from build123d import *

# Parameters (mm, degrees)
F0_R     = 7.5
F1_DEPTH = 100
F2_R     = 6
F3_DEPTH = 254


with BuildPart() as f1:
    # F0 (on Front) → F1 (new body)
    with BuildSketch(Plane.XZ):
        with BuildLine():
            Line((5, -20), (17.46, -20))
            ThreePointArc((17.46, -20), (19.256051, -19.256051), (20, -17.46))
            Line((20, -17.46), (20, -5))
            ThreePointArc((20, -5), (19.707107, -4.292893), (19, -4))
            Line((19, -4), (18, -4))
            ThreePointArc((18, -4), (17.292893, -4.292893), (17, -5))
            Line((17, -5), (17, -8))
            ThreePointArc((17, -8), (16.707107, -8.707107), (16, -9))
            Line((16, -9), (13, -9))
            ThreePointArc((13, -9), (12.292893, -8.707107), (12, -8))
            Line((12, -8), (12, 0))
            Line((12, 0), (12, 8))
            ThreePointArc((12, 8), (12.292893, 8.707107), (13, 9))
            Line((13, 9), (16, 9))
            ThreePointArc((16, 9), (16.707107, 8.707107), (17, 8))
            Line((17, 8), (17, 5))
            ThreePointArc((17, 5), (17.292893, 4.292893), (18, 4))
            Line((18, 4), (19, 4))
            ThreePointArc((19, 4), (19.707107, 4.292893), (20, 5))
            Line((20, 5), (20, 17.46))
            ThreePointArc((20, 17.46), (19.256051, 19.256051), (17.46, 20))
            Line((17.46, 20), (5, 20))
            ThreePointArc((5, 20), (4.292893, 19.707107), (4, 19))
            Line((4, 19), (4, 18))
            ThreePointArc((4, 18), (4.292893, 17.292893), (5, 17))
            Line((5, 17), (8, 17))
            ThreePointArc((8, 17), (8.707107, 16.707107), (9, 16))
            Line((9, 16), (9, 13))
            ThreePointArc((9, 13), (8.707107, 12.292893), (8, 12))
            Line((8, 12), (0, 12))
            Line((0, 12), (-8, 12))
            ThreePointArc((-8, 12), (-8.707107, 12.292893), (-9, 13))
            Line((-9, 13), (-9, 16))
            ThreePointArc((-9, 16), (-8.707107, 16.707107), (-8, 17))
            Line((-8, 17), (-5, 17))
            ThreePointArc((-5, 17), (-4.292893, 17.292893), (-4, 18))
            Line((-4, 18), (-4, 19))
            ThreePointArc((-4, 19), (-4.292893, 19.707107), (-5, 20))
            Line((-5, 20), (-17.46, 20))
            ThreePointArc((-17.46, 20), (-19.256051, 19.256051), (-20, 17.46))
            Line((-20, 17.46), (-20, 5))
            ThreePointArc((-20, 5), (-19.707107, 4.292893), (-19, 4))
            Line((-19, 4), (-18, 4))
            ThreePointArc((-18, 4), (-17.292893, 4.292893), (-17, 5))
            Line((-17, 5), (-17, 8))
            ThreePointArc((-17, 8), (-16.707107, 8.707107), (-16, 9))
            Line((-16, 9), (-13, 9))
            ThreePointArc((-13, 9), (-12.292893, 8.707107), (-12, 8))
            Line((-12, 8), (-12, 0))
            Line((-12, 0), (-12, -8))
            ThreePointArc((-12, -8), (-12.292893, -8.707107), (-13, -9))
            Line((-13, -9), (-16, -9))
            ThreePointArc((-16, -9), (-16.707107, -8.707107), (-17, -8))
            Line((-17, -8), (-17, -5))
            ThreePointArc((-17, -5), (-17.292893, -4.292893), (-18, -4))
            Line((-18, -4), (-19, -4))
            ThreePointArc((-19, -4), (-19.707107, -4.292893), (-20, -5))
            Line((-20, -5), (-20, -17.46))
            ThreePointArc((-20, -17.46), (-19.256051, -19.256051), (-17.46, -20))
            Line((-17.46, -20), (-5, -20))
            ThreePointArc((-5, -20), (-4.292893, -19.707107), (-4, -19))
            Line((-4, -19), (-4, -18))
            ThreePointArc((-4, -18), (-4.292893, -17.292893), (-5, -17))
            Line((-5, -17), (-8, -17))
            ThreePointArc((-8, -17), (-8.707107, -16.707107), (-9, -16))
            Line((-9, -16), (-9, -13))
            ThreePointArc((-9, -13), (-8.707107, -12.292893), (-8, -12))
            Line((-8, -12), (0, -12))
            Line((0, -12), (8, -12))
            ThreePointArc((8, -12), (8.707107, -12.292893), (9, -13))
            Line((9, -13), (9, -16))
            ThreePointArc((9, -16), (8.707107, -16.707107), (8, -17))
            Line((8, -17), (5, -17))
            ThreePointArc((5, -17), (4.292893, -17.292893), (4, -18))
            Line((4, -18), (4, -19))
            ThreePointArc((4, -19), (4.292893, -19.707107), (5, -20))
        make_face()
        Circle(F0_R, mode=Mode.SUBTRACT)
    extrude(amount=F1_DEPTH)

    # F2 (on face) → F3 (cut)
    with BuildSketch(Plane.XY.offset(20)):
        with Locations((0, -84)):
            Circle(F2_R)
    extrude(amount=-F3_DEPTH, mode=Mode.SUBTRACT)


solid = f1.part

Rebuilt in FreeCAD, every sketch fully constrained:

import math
import FreeCAD as App
import Part
import Sketcher

V = App.Vector
Q = App.Units.Quantity

doc = App.newDocument("Part")
params = doc.addObject("Spreadsheet::Sheet", "Params")
for row, (alias, value) in enumerate([
    ("sketch1_diameter", "15 mm"),
    ("sketch1_radius", "0.999999 mm"),
    ("sketch1_width", "1 mm"),
    ("sketch1_width2", "3 mm"),
    ("sketch1_width3", "16 mm"),
    ("pad1_length", "100 mm"),
    ("sketch2_diameter", "12 mm"),
    ("pocket1_length", "254 mm"),
], start=1):
    params.set(f"A{row}", alias)
    params.set(f"B{row}", "=" + value)
    params.setAlias(f"B{row}", alias)

body = doc.addObject("PartDesign::Body", "Body")

sketch1 = body.newObject("Sketcher::SketchObject", "Sketch")
sketch1.AttachmentSupport = (doc.getObject("XZ_Plane"), [""])
sketch1.MapMode = "FlatFace"
sketch1.addGeometry([
    Part.LineSegment(V(5, -20, 0), V(17.5, -20, 0)),
    Part.ArcOfCircle(Part.Circle(V(17.5, -17.5, 0), V(0, 0, 1), 2.5), math.radians(-90), math.radians(0)),
    Part.LineSegment(V(20, -17.5, 0), V(20, -5, 0)),
    Part.ArcOfCircle(Part.Circle(V(19, -5, 0), V(0, 0, 1), 1), math.radians(0), math.radians(90)),
    Part.LineSegment(V(19, -4, 0), V(18, -4, 0)),
    Part.ArcOfCircle(Part.Circle(V(18, -5, 0), V(0, 0, 1), 1), math.radians(90), math.radians(180)),
    Part.LineSegment(V(17, -5, 0), V(17, -8, 0)),
    Part.ArcOfCircle(Part.Circle(V(16, -8, 0), V(0, 0, 1), 1), math.radians(-90), math.radians(0)),
    Part.LineSegment(V(16, -9, 0), V(13, -9, 0)),
    Part.ArcOfCircle(Part.Circle(V(13, -8, 0), V(0, 0, 1), 1), math.radians(180), math.radians(270)),
    Part.LineSegment(V(12, -8, 0), V(12, 8, 0)),
    Part.ArcOfCircle(Part.Circle(V(13, 8, 0), V(0, 0, 1), 1), math.radians(90), math.radians(180)),
    Part.LineSegment(V(13, 9, 0), V(16, 9, 0)),
    Part.ArcOfCircle(Part.Circle(V(16, 8, 0), V(0, 0, 1), 1), math.radians(0), math.radians(90)),
    Part.LineSegment(V(17, 8, 0), V(17, 5, 0)),
    Part.ArcOfCircle(Part.Circle(V(18, 5, 0), V(0, 0, 1), 1), math.radians(180), math.radians(270)),
    Part.LineSegment(V(18, 4, 0), V(19, 4, 0)),
    Part.ArcOfCircle(Part.Circle(V(19, 5, 0), V(0, 0, 1), 1), math.radians(-90), math.radians(0)),
    Part.LineSegment(V(20, 5, 0), V(20, 17.5, 0)),
    Part.ArcOfCircle(Part.Circle(V(17.5, 17.5, 0), V(0, 0, 1), 2.5), math.radians(0), math.radians(90)),
    Part.LineSegment(V(17.5, 20, 0), V(5, 20, 0)),
    Part.ArcOfCircle(Part.Circle(V(5, 19, 0), V(0, 0, 1), 1), math.radians(90), math.radians(180)),
    Part.LineSegment(V(4, 19, 0), V(4, 18, 0)),
    Part.ArcOfCircle(Part.Circle(V(5, 18, 0), V(0, 0, 1), 1), math.radians(180), math.radians(270)),
    Part.LineSegment(V(5, 17, 0), V(8, 17, 0)),
    Part.ArcOfCircle(Part.Circle(V(8, 16, 0), V(0, 0, 1), 1), math.radians(0), math.radians(90)),
    Part.LineSegment(V(9, 16, 0), V(9, 13, 0)),
    Part.ArcOfCircle(Part.Circle(V(8, 13, 0), V(0, 0, 1), 1), math.radians(-90), math.radians(0)),
    Part.LineSegment(V(8, 12, 0), V(-8, 12, 0)),
    Part.ArcOfCircle(Part.Circle(V(-8, 13, 0), V(0, 0, 1), 1), math.radians(180), math.radians(270)),
    Part.LineSegment(V(-9, 13, 0), V(-9, 16, 0)),
    Part.ArcOfCircle(Part.Circle(V(-8, 16, 0), V(0, 0, 1), 1), math.radians(90), math.radians(180)),
    Part.LineSegment(V(-8, 17, 0), V(-5, 17, 0)),
    Part.ArcOfCircle(Part.Circle(V(-5, 18, 0), V(0, 0, 1), 1), math.radians(-90), math.radians(0)),
    Part.LineSegment(V(-4, 18, 0), V(-4, 19, 0)),
    Part.ArcOfCircle(Part.Circle(V(-5, 19, 0), V(0, 0, 1), 1), math.radians(0), math.radians(90)),
    Part.LineSegment(V(-5, 20, 0), V(-17.5, 20, 0)),
    Part.ArcOfCircle(Part.Circle(V(-17.5, 17.5, 0), V(0, 0, 1), 2.5), math.radians(90), math.radians(180)),
    Part.LineSegment(V(-20, 17.5, 0), V(-20, 5, 0)),
    Part.ArcOfCircle(Part.Circle(V(-19, 5, 0), V(0, 0, 1), 1), math.radians(180), math.radians(270)),
    Part.LineSegment(V(-19, 4, 0), V(-18, 4, 0)),
    Part.ArcOfCircle(Part.Circle(V(-18, 5, 0), V(0, 0, 1), 1), math.radians(-90), math.radians(0)),
    Part.LineSegment(V(-17, 5, 0), V(-17, 8, 0)),
    Part.ArcOfCircle(Part.Circle(V(-16, 8, 0), V(0, 0, 1), 1), math.radians(90), math.radians(180)),
    Part.LineSegment(V(-16, 9, 0), V(-13, 9, 0)),
    Part.ArcOfCircle(Part.Circle(V(-13, 8, 0), V(0, 0, 1), 1), math.radians(0), math.radians(90)),
    Part.LineSegment(V(-12, 8, 0), V(-12, -8, 0)),
    Part.ArcOfCircle(Part.Circle(V(-13, -8, 0), V(0, 0, 1), 1), math.radians(-90), math.radians(0)),
    Part.LineSegment(V(-13, -9, 0), V(-16, -9, 0)),
    Part.ArcOfCircle(Part.Circle(V(-16, -8, 0), V(0, 0, 1), 1), math.radians(180), math.radians(270)),
    Part.LineSegment(V(-17, -8, 0), V(-17, -5, 0)),
    Part.ArcOfCircle(Part.Circle(V(-18, -5, 0), V(0, 0, 1), 1), math.radians(0), math.radians(90)),
    Part.LineSegment(V(-18, -4, 0), V(-19, -4, 0)),
    Part.ArcOfCircle(Part.Circle(V(-19, -5, 0), V(0, 0, 1), 1), math.radians(90), math.radians(180)),
    Part.LineSegment(V(-20, -5, 0), V(-20, -17.5, 0)),
    Part.ArcOfCircle(Part.Circle(V(-17.5, -17.5, 0), V(0, 0, 1), 2.5), math.radians(-180), math.radians(-90)),
    Part.LineSegment(V(-17.5, -20, 0), V(-5, -20, 0)),
    Part.ArcOfCircle(Part.Circle(V(-5, -19, 0), V(0, 0, 1), 1), math.radians(-90), math.radians(0)),
    Part.LineSegment(V(-4, -19, 0), V(-4, -18, 0)),
    Part.ArcOfCircle(Part.Circle(V(-5, -18, 0), V(0, 0, 1), 1), math.radians(0), math.radians(90)),
    Part.LineSegment(V(-5, -17, 0), V(-8, -17, 0)),
    Part.ArcOfCircle(Part.Circle(V(-8, -16, 0), V(0, 0, 1), 1), math.radians(180), math.radians(270)),
    Part.LineSegment(V(-9, -16, 0), V(-9, -13, 0)),
    Part.ArcOfCircle(Part.Circle(V(-8, -13, 0), V(0, 0, 1), 1), math.radians(90), math.radians(180)),
    Part.LineSegment(V(-8, -12, 0), V(8, -12, 0)),
    Part.ArcOfCircle(Part.Circle(V(8, -13, 0), V(0, 0, 1), 1), math.radians(0), math.radians(90)),
    Part.LineSegment(V(9, -13, 0), V(9, -16, 0)),
    Part.ArcOfCircle(Part.Circle(V(8, -16, 0), V(0, 0, 1), 1), math.radians(-90), math.radians(0)),
    Part.LineSegment(V(8, -17, 0), V(5, -17, 0)),
    Part.ArcOfCircle(Part.Circle(V(5, -18, 0), V(0, 0, 1), 1), math.radians(90), math.radians(180)),
    Part.LineSegment(V(4, -18, 0), V(4, -19, 0)),
    Part.ArcOfCircle(Part.Circle(V(5, -19, 0), V(0, 0, 1), 1), math.radians(180), math.radians(270)),
    Part.Circle(V(0, 0, 0), V(0, 0, 1), 7.5),
], False)
sketch1.addConstraint([
    Sketcher.Constraint("Tangent", 0, 2, 1, 1),
    Sketcher.Constraint("Tangent", 1, 2, 2, 1),
    Sketcher.Constraint("Tangent", 2, 2, 3, 1),
    Sketcher.Constraint("Tangent", 3, 2, 4, 1),
    Sketcher.Constraint("Tangent", 4, 2, 5, 1),
    Sketcher.Constraint("Tangent", 5, 2, 6, 1),
    Sketcher.Constraint("Tangent", 6, 2, 7, 2),
    Sketcher.Constraint("Tangent", 7, 1, 8, 1),
    Sketcher.Constraint("Tangent", 8, 2, 9, 2),
    Sketcher.Constraint("Tangent", 9, 1, 10, 1),
    Sketcher.Constraint("Tangent", 10, 2, 11, 2),
    Sketcher.Constraint("Tangent", 11, 1, 12, 1),
    Sketcher.Constraint("Tangent", 12, 2, 13, 2),
    Sketcher.Constraint("Tangent", 13, 1, 14, 1),
    Sketcher.Constraint("Tangent", 14, 2, 15, 1),
    Sketcher.Constraint("Tangent", 15, 2, 16, 1),
    Sketcher.Constraint("Tangent", 16, 2, 17, 1),
    Sketcher.Constraint("Tangent", 17, 2, 18, 1),
    Sketcher.Constraint("Tangent", 18, 2, 19, 1),
    Sketcher.Constraint("Tangent", 19, 2, 20, 1),
    Sketcher.Constraint("Tangent", 20, 2, 21, 1),
    Sketcher.Constraint("Tangent", 21, 2, 22, 1),
    Sketcher.Constraint("Tangent", 22, 2, 23, 1),
    Sketcher.Constraint("Tangent", 23, 2, 24, 1),
    Sketcher.Constraint("Tangent", 24, 2, 25, 2),
    Sketcher.Constraint("Tangent", 25, 1, 26, 1),
    Sketcher.Constraint("Tangent", 26, 2, 27, 2),
    Sketcher.Constraint("Tangent", 27, 1, 28, 1),
    Sketcher.Constraint("Tangent", 28, 2, 29, 2),
    Sketcher.Constraint("Tangent", 29, 1, 30, 1),
    Sketcher.Constraint("Tangent", 30, 2, 31, 2),
    Sketcher.Constraint("Tangent", 31, 1, 32, 1),
    Sketcher.Constraint("Tangent", 32, 2, 33, 1),
    Sketcher.Constraint("Tangent", 33, 2, 34, 1),
    Sketcher.Constraint("Tangent", 34, 2, 35, 1),
    Sketcher.Constraint("Tangent", 35, 2, 36, 1),
    Sketcher.Constraint("Tangent", 36, 2, 37, 1),
    Sketcher.Constraint("Tangent", 37, 2, 38, 1),
    Sketcher.Constraint("Tangent", 38, 2, 39, 1),
    Sketcher.Constraint("Tangent", 39, 2, 40, 1),
    Sketcher.Constraint("Tangent", 40, 2, 41, 1),
    Sketcher.Constraint("Tangent", 41, 2, 42, 1),
    Sketcher.Constraint("Tangent", 42, 2, 43, 2),
    Sketcher.Constraint("Tangent", 43, 1, 44, 1),
    Sketcher.Constraint("Tangent", 44, 2, 45, 2),
    Sketcher.Constraint("Tangent", 45, 1, 46, 1),
    Sketcher.Constraint("Tangent", 46, 2, 47, 2),
    Sketcher.Constraint("Tangent", 47, 1, 48, 1),
    Sketcher.Constraint("Tangent", 48, 2, 49, 2),
    Sketcher.Constraint("Tangent", 49, 1, 50, 1),
    Sketcher.Constraint("Tangent", 50, 2, 51, 1),
    Sketcher.Constraint("Tangent", 51, 2, 52, 1),
    Sketcher.Constraint("Tangent", 52, 2, 53, 1),
    Sketcher.Constraint("Tangent", 53, 2, 54, 1),
    Sketcher.Constraint("Tangent", 54, 2, 55, 1),
    Sketcher.Constraint("Tangent", 55, 2, 56, 1),
    Sketcher.Constraint("Tangent", 56, 2, 57, 1),
    Sketcher.Constraint("Tangent", 57, 2, 58, 1),
    Sketcher.Constraint("Tangent", 58, 2, 59, 1),
    Sketcher.Constraint("Tangent", 59, 2, 60, 1),
    Sketcher.Constraint("Tangent", 60, 2, 61, 2),
    Sketcher.Constraint("Tangent", 61, 1, 62, 1),
    Sketcher.Constraint("Tangent", 62, 2, 63, 2),
    Sketcher.Constraint("Tangent", 63, 1, 64, 1),
    Sketcher.Constraint("Tangent", 64, 2, 65, 2),
    Sketcher.Constraint("Tangent", 65, 1, 66, 1),
    Sketcher.Constraint("Tangent", 66, 2, 67, 2),
    Sketcher.Constraint("Tangent", 67, 1, 68, 1),
    Sketcher.Constraint("Tangent", 68, 2, 69, 1),
    Sketcher.Constraint("Tangent", 69, 2, 70, 1),
    Sketcher.Constraint("Tangent", 70, 2, 71, 1),
    Sketcher.Constraint("Tangent", 71, 2, 0, 1),
    Sketcher.Constraint("Horizontal", 0),
    Sketcher.Constraint("Vertical", 2),
    Sketcher.Constraint("Horizontal", 4),
    Sketcher.Constraint("Vertical", 6),
    Sketcher.Constraint("Horizontal", 8),
    Sketcher.Constraint("Vertical", 10),
    Sketcher.Constraint("Horizontal", 12),
    Sketcher.Constraint("Vertical", 14),
    Sketcher.Constraint("Horizontal", 16),
    Sketcher.Constraint("Vertical", 18),
    Sketcher.Constraint("Horizontal", 20),
    Sketcher.Constraint("Vertical", 22),
    Sketcher.Constraint("Horizontal", 24),
    Sketcher.Constraint("Vertical", 26),
    Sketcher.Constraint("Horizontal", 28),
    Sketcher.Constraint("Vertical", 30),
    Sketcher.Constraint("Horizontal", 32),
    Sketcher.Constraint("Vertical", 34),
    Sketcher.Constraint("Horizontal", 36),
    Sketcher.Constraint("Vertical", 38),
    Sketcher.Constraint("Horizontal", 40),
    Sketcher.Constraint("Vertical", 42),
    Sketcher.Constraint("Horizontal", 44),
    Sketcher.Constraint("Vertical", 46),
    Sketcher.Constraint("Horizontal", 48),
    Sketcher.Constraint("Vertical", 50),
    Sketcher.Constraint("Horizontal", 52),
    Sketcher.Constraint("Vertical", 54),
    Sketcher.Constraint("Horizontal", 56),
    Sketcher.Constraint("Vertical", 58),
    Sketcher.Constraint("Horizontal", 60),
    Sketcher.Constraint("Vertical", 62),
    Sketcher.Constraint("Horizontal", 64),
    Sketcher.Constraint("Vertical", 66),
    Sketcher.Constraint("Horizontal", 68),
    Sketcher.Constraint("Vertical", 70),
    Sketcher.Constraint("Coincident", 72, 3, -1, 1),
    Sketcher.Constraint("Equal", 3, 5),
    Sketcher.Constraint("Equal", 5, 7),
    Sketcher.Constraint("Equal", 7, 9),
    Sketcher.Constraint("Equal", 9, 11),
    Sketcher.Constraint("Equal", 11, 13),
    Sketcher.Constraint("Equal", 13, 15),
    Sketcher.Constraint("Equal", 15, 17),
    Sketcher.Constraint("Equal", 1, 19),
    Sketcher.Constraint("Equal", 17, 21),
    Sketcher.Constraint("Equal", 21, 23),
    Sketcher.Constraint("Equal", 23, 25),
    Sketcher.Constraint("Equal", 25, 27),
    Sketcher.Constraint("Equal", 27, 29),
    Sketcher.Constraint("Equal", 29, 31),
    Sketcher.Constraint("Equal", 31, 33),
    Sketcher.Constraint("Equal", 33, 35),
    Sketcher.Constraint("Equal", 19, 37),
    Sketcher.Constraint("Equal", 35, 39),
    Sketcher.Constraint("Equal", 39, 41),
    Sketcher.Constraint("Equal", 41, 43),
    Sketcher.Constraint("Equal", 43, 45),
    Sketcher.Constraint("Equal", 45, 47),
    Sketcher.Constraint("Equal", 47, 49),
    Sketcher.Constraint("Equal", 49, 51),
    Sketcher.Constraint("Equal", 51, 53),
    Sketcher.Constraint("Equal", 37, 55),
    Sketcher.Constraint("Equal", 53, 57),
    Sketcher.Constraint("Equal", 57, 59),
    Sketcher.Constraint("Equal", 59, 61),
    Sketcher.Constraint("Equal", 61, 63),
    Sketcher.Constraint("Equal", 63, 65),
    Sketcher.Constraint("Equal", 65, 67),
    Sketcher.Constraint("Equal", 67, 69),
    Sketcher.Constraint("Equal", 69, 71),
    Sketcher.Constraint("Symmetric", 1, 3, 37, 3, -1, 1),
    Sketcher.Constraint("Symmetric", 5, 3, 41, 3, -1, 1),
    Sketcher.Constraint("Symmetric", 9, 3, 45, 3, -1, 1),
    Sketcher.Constraint("Symmetric", 13, 3, 49, 3, -1, 1),
    Sketcher.Constraint("Symmetric", 17, 3, 53, 3, -1, 1),
    Sketcher.Constraint("Symmetric", 21, 3, 57, 3, -1, 1),
    Sketcher.Constraint("Symmetric", 25, 3, 61, 3, -1, 1),
    Sketcher.Constraint("Symmetric", 29, 3, 65, 3, -1, 1),
    Sketcher.Constraint("Symmetric", 33, 3, 69, 3, -1, 1),
    Sketcher.Constraint("Symmetric", 25, 3, 31, 3, -2),
    Sketcher.Constraint("Symmetric", 21, 3, 35, 3, -2),
    Sketcher.Constraint("Symmetric", 17, 3, 39, 3, -2),
    Sketcher.Constraint("Symmetric", 13, 3, 43, 3, -2),
    Sketcher.Constraint("Equal", 12, 24),
    Sketcher.Constraint("Equal", 56, 2),
    Sketcher.Constraint("Equal", 68, 6),
    Sketcher.Constraint("Equal", 64, 10),
    Sketcher.Constraint("Equal", 52, 22),
    Sketcher.Constraint("Equal", 14, 26),
    Sketcher.Constraint("Diameter", 72, Q("15 mm")),
    Sketcher.Constraint("Radius", 3, Q("0.999999 mm")),
    Sketcher.Constraint("DistanceX", 4, 2, 4, 1, Q("1 mm")),
    Sketcher.Constraint("DistanceX", 8, 2, 8, 1, Q("3 mm")),
    Sketcher.Constraint("DistanceX", 28, 2, 28, 1, Q("16 mm")),
    Sketcher.Constraint("Radius", 1, Q("2.540001 mm")),
    Sketcher.Constraint("DistanceX", -1, 1, 3, 3, Q("19.000001 mm")),
])
sketch1.setExpression("Constraints[162]", "Params.sketch1_diameter")
sketch1.setExpression("Constraints[163]", "Params.sketch1_radius")
sketch1.setExpression("Constraints[164]", "Params.sketch1_width")
sketch1.setExpression("Constraints[165]", "Params.sketch1_width2")
sketch1.setExpression("Constraints[166]", "Params.sketch1_width3")
pad1 = body.newObject("PartDesign::Pad", "Pad")
pad1.Profile = sketch1
pad1.setExpression("Length", "Params.pad1_length")

sketch2 = body.newObject("Sketcher::SketchObject", "Sketch001")
sketch2.AttachmentSupport = (doc.getObject("XY_Plane"), [""])
sketch2.MapMode = "FlatFace"
sketch2.AttachmentOffset = App.Placement(V(0, 0, 20), App.Rotation())
sketch2.addGeometry(Part.Circle(V(0, -84, 0), V(0, 0, 1), 6), False)
sketch2.addConstraint([
    Sketcher.Constraint("PointOnObject", 0, 3, -2),
    Sketcher.Constraint("Diameter", 0, Q("12 mm")),
    Sketcher.Constraint("DistanceY", 0, 3, -1, 1, Q("84 mm")),
])
sketch2.setExpression("Constraints[1]", "Params.sketch2_diameter")
pocket1 = body.newObject("PartDesign::Pocket", "Pocket")
pocket1.Profile = sketch2
pocket1.setExpression("Length", "Params.pocket1_length")

doc.recompute()
